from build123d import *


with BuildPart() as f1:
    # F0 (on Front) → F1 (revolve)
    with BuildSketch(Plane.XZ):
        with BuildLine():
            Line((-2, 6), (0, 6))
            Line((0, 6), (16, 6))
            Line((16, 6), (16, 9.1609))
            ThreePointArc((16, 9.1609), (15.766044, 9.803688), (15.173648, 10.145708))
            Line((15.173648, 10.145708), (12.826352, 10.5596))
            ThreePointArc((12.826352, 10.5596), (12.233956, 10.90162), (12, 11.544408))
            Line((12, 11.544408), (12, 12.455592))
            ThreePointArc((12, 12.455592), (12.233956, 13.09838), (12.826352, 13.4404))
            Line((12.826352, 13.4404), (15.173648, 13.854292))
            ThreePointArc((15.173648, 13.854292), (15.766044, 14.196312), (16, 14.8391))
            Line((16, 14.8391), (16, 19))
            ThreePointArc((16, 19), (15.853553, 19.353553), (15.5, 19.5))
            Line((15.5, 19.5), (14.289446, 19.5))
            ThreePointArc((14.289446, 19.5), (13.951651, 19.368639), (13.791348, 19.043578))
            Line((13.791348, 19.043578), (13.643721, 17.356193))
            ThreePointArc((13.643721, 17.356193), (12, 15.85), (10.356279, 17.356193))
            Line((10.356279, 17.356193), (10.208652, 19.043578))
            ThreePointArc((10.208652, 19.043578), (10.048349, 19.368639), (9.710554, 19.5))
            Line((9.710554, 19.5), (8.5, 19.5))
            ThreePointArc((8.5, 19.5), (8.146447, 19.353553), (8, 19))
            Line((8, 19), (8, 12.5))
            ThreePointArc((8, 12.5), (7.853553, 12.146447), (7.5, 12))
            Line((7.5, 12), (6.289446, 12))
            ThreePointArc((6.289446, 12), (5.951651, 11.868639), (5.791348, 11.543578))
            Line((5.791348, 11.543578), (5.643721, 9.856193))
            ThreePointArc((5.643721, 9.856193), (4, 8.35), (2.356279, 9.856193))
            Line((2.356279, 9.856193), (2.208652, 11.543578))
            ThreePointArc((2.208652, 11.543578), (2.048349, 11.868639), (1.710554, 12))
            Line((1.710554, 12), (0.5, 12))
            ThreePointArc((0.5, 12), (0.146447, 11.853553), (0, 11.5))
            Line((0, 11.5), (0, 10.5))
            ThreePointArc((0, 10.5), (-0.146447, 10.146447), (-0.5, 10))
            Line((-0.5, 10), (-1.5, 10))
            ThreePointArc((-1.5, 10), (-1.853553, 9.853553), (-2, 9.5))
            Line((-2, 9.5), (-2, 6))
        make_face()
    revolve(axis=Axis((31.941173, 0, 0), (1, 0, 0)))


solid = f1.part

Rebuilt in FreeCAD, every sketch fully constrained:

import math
import FreeCAD as App
import Part
import Sketcher
from FreeCAD import Vector
Q = App.Units.Quantity

doc = App.newDocument("Part")
body = doc.addObject("PartDesign::Body", "Body")

# Sketch on XZ plane
sketch1 = body.newObject("Sketcher::SketchObject", "Sketch")
sketch1.AttachmentSupport = (doc.getObject("XZ_Plane"), [""])
sketch1.MapMode = "FlatFace"
sketch1.addGeometry([
    Part.LineSegment(Vector(-2, 6, 0), Vector(16, 6, 0)),  # 0
    Part.LineSegment(Vector(16, 6, 0), Vector(16, 9.2, 0)),  # 1
    Part.ArcOfCircle(Part.Circle(Vector(15, 9.2, 0), Vector(0, 0, 1), 1), math.radians(0), math.radians(80)),  # 2
    Part.LineSegment(Vector(15.2, 10.1, 0), Vector(12.8, 10.6, 0)),  # 3
    Part.ArcOfCircle(Part.Circle(Vector(13, 11.5, 0), Vector(0, 0, 1), 1), math.radians(-180), math.radians(-100)),  # 4
    Part.LineSegment(Vector(12, 11.5, 0), Vector(12, 12.5, 0)),  # 5
    Part.ArcOfCircle(Part.Circle(Vector(13, 12.5, 0), Vector(0, 0, 1), 1), math.radians(100), math.radians(180)),  # 6
    Part.LineSegment(Vector(12.8, 13.4, 0), Vector(15.2, 13.9, 0)),  # 7
    Part.ArcOfCircle(Part.Circle(Vector(15, 14.8, 0), Vector(0, 0, 1), 1), math.radians(-80), math.radians(0)),  # 8
    Part.LineSegment(Vector(16, 14.8, 0), Vector(16, 19, 0)),  # 9
    Part.ArcOfCircle(Part.Circle(Vector(15.5, 19, 0), Vector(0, 0, 1), 0.5), math.radians(0), math.radians(90)),  # 10
    Part.LineSegment(Vector(15.5, 19.5, 0), Vector(14.3, 19.5, 0)),  # 11
    Part.ArcOfCircle(Part.Circle(Vector(14.3, 19, 0), Vector(0, 0, 1), 0.5), math.radians(90), math.radians(175)),  # 12
    Part.LineSegment(Vector(13.8, 19, 0), Vector(13.6, 17.4, 0)),  # 13
    Part.ArcOfCircle(Part.Circle(Vector(12, 17.5, 0), Vector(0, 0, 1), 1.6), math.radians(-175), math.radians(-5)),  # 14
    Part.LineSegment(Vector(10.4, 17.4, 0), Vector(10.2, 19, 0)),  # 15
    Part.ArcOfCircle(Part.Circle(Vector(9.7, 19, 0), Vector(0, 0, 1), 0.5), math.radians(5), math.radians(90)),  # 16
    Part.LineSegment(Vector(9.7, 19.5, 0), Vector(8.5, 19.5, 0)),  # 17
    Part.ArcOfCircle(Part.Circle(Vector(8.5, 19, 0), Vector(0, 0, 1), 0.5), math.radians(90), math.radians(180)),  # 18
    Part.LineSegment(Vector(8, 19, 0), Vector(8, 12.5, 0)),  # 19
    Part.ArcOfCircle(Part.Circle(Vector(7.5, 12.5, 0), Vector(0, 0, 1), 0.5), math.radians(-90), math.radians(0)),  # 20
    Part.LineSegment(Vector(7.5, 12, 0), Vector(6.3, 12, 0)),  # 21
    Part.ArcOfCircle(Part.Circle(Vector(6.3, 11.5, 0), Vector(0, 0, 1), 0.5), math.radians(90), math.radians(175)),  # 22
    Part.LineSegment(Vector(5.8, 11.5, 0), Vector(5.6, 9.9, 0)),  # 23
    Part.ArcOfCircle(Part.Circle(Vector(4, 10, 0), Vector(0, 0, 1), 1.6), math.radians(-175), math.radians(-5)),  # 24
    Part.LineSegment(Vector(2.4, 9.9, 0), Vector(2.2, 11.5, 0)),  # 25
    Part.ArcOfCircle(Part.Circle(Vector(1.7, 11.5, 0), Vector(0, 0, 1), 0.5), math.radians(5), math.radians(90)),  # 26
    Part.LineSegment(Vector(1.7, 12, 0), Vector(0.5, 12, 0)),  # 27
    Part.ArcOfCircle(Part.Circle(Vector(0.5, 11.5, 0), Vector(0, 0, 1), 0.5), math.radians(90), math.radians(180)),  # 28
    Part.LineSegment(Vector(0, 11.5, 0), Vector(0, 10.5, 0)),  # 29
    Part.ArcOfCircle(Part.Circle(Vector(-0.5, 10.5, 0), Vector(0, 0, 1), 0.5), math.radians(-90), math.radians(0)),  # 30
    Part.LineSegment(Vector(-0.5, 10, 0), Vector(-1.5, 10, 0)),  # 31
    Part.ArcOfCircle(Part.Circle(Vector(-1.5, 9.5, 0), Vector(0, 0, 1), 0.5), math.radians(90), math.radians(180)),  # 32
    Part.LineSegment(Vector(-2, 9.5, 0), Vector(-2, 6, 0)),  # 33
], False)
sketch1.addConstraint([
    Sketcher.Constraint("Coincident", 0, 2, 1, 1),
    Sketcher.Constraint("Tangent", 1, 2, 2, 1),
    Sketcher.Constraint("Tangent", 2, 2, 3, 1),
    Sketcher.Constraint("Tangent", 3, 2, 4, 2),
    Sketcher.Constraint("Tangent", 4, 1, 5, 1),
    Sketcher.Constraint("Tangent", 5, 2, 6, 2),
    Sketcher.Constraint("Tangent", 6, 1, 7, 1),
    Sketcher.Constraint("Tangent", 7, 2, 8, 1),
    Sketcher.Constraint("Tangent", 8, 2, 9, 1),
    Sketcher.Constraint("Coincident", 9, 2, 10, 1),
    Sketcher.Constraint("Coincident", 10, 2, 11, 1),
    Sketcher.Constraint("Tangent", 11, 2, 12, 1),
    Sketcher.Constraint("Tangent", 12, 2, 13, 1),
    Sketcher.Constraint("Tangent", 13, 2, 14, 2),
    Sketcher.Constraint("Tangent", 14, 1, 15, 1),
    Sketcher.Constraint("Tangent", 15, 2, 16, 1),
    Sketcher.Constraint("Tangent", 16, 2, 17, 1),
    Sketcher.Constraint("Coincident", 17, 2, 18, 1),
    Sketcher.Constraint("Coincident", 18, 2, 19, 1),
    Sketcher.Constraint("Coincident", 19, 2, 20, 2),
    Sketcher.Constraint("Coincident", 20, 1, 21, 1),
    Sketcher.Constraint("Tangent", 21, 2, 22, 1),
    Sketcher.Constraint("Tangent", 22, 2, 23, 1),
    Sketcher.Constraint("Tangent", 23, 2, 24, 2),
    Sketcher.Constraint("Tangent", 24, 1, 25, 1),
    Sketcher.Constraint("Tangent", 25, 2, 26, 1),
    Sketcher.Constraint("Tangent", 26, 2, 27, 1),
    Sketcher.Constraint("Coincident", 27, 2, 28, 1),
    Sketcher.Constraint("Coincident", 28, 2, 29, 1),
    Sketcher.Constraint("Coincident", 29, 2, 30, 2),
    Sketcher.Constraint("Coincident", 30, 1, 31, 1),
    Sketcher.Constraint("Coincident", 31, 2, 32, 1),
    Sketcher.Constraint("Coincident", 32, 2, 33, 1),
    Sketcher.Constraint("Coincident", 33, 2, 0, 1),
    Sketcher.Constraint("Horizontal", 0),
    Sketcher.Constraint("Vertical", 1),
    Sketcher.Constraint("Vertical", 5),
    Sketcher.Constraint("Vertical", 9),
    Sketcher.Constraint("Horizontal", 11),
    Sketcher.Constraint("Horizontal", 17),
    Sketcher.Constraint("Vertical", 19),
    Sketcher.Constraint("Horizontal", 21),
    Sketcher.Constraint("Horizontal", 27),
    Sketcher.Constraint("Vertical", 29),
    Sketcher.Constraint("Horizontal", 31),
    Sketcher.Constraint("Vertical", 33),
    Sketcher.Constraint("Equal", 2, 4),
    Sketcher.Constraint("Equal", 4, 6),
    Sketcher.Constraint("Equal", 6, 8),
    Sketcher.Constraint("Equal", 10, 12),
    Sketcher.Constraint("Equal", 12, 16),
    Sketcher.Constraint("Equal", 16, 18),
    Sketcher.Constraint("Equal", 18, 20),
    Sketcher.Constraint("Equal", 20, 22),
    Sketcher.Constraint("Equal", 14, 24),
    Sketcher.Constraint("Equal", 22, 26),
    Sketcher.Constraint("Equal", 26, 28),
    Sketcher.Constraint("Equal", 28, 30),
    Sketcher.Constraint("Equal", 30, 32),
    Sketcher.Constraint("PointOnObject", 28, 2, -2),
    Sketcher.Constraint("Parallel", 13, 23),
    Sketcher.Constraint("Parallel", 15, 25),
    Sketcher.Constraint("Horizontal", 12, 3, 16, 3),
    Sketcher.Constraint("Horizontal", 22, 3, 26, 3),
    Sketcher.Constraint("Horizontal", 18, 3, 9, 2),
    Sketcher.Constraint("Horizontal", 13, 2, 14, 1),
    Sketcher.Constraint("Horizontal", 9, 2, 18, 2),
    Sketcher.Constraint("Horizontal", 20, 3, 19, 2),
    Sketcher.Constraint("Horizontal", 26, 3, 28, 2),
    Sketcher.Constraint("Horizontal", 30, 3, 29, 2),
    Sketcher.Constraint("Horizontal", 24, 3, 30, 1),
    Sketcher.Constraint("Vertical", 2, 3, 8, 3),
    Sketcher.Constraint("Vertical", 14, 3, 4, 1),
    Sketcher.Constraint("Vertical", 3, 2, 6, 1),
    Sketcher.Constraint("Vertical", 18, 3, 17, 2),
    Sketcher.Constraint("Vertical", 28, 3, 27, 2),
    Sketcher.Constraint("Vertical", 32, 3, 31, 2),
    Sketcher.Constraint("Equal", 11, 17),
    Sketcher.Constraint("Equal", 17, 21),
    Sketcher.Constraint("Equal", 21, 27),
    Sketcher.Constraint("Equal", 31, 29),
    Sketcher.Constraint("Equal", 15, 23),
    Sketcher.Constraint("Radius", 2, 1.000001),
    Sketcher.Constraint("Radius", 10, 0.500001),
    Sketcher.Constraint("DistanceX", 0, 1, 0, 2, 18.0),
    Sketcher.Constraint("DistanceX", 31, 2, 31, 1, 1.0),
    Sketcher.Constraint("Angle", 3, Q("169.999991 deg")),
    Sketcher.Constraint("Angle", 13, Q("-94.999998 deg")),
    Sketcher.Constraint("Radius", 14, 1.65),
    Sketcher.Constraint("DistanceY", 19, 2, 19, 1, 6.5),
    Sketcher.Constraint("DistanceY", 33, 2, 33, 1, 3.5),
    Sketcher.Constraint("DistanceX", -1, 1, 2, 3, 14.999999),
    Sketcher.Constraint("DistanceX", -1, 1, 4, 3, 13.000001),
    Sketcher.Constraint("DistanceY", -1, 1, 10, 3, 18.999999),
    Sketcher.Constraint("DistanceX", -1, 1, 24, 3, 4.0),
    Sketcher.Constraint("DistanceY", -1, 1, 0, 2, 6.0),
    Sketcher.Constraint("DistanceY", 1, 1, 1, 2, 3.1609),
    Sketcher.Constraint("DistanceY", 9, 1, 9, 2, 4.1609),
])
revolution = body.newObject("PartDesign::Revolution", "Revolution")
revolution.Profile = sketch1
revolution.ReferenceAxis = (sketch1, ["H_Axis"])
revolution.Angle = 360

doc.recompute()
